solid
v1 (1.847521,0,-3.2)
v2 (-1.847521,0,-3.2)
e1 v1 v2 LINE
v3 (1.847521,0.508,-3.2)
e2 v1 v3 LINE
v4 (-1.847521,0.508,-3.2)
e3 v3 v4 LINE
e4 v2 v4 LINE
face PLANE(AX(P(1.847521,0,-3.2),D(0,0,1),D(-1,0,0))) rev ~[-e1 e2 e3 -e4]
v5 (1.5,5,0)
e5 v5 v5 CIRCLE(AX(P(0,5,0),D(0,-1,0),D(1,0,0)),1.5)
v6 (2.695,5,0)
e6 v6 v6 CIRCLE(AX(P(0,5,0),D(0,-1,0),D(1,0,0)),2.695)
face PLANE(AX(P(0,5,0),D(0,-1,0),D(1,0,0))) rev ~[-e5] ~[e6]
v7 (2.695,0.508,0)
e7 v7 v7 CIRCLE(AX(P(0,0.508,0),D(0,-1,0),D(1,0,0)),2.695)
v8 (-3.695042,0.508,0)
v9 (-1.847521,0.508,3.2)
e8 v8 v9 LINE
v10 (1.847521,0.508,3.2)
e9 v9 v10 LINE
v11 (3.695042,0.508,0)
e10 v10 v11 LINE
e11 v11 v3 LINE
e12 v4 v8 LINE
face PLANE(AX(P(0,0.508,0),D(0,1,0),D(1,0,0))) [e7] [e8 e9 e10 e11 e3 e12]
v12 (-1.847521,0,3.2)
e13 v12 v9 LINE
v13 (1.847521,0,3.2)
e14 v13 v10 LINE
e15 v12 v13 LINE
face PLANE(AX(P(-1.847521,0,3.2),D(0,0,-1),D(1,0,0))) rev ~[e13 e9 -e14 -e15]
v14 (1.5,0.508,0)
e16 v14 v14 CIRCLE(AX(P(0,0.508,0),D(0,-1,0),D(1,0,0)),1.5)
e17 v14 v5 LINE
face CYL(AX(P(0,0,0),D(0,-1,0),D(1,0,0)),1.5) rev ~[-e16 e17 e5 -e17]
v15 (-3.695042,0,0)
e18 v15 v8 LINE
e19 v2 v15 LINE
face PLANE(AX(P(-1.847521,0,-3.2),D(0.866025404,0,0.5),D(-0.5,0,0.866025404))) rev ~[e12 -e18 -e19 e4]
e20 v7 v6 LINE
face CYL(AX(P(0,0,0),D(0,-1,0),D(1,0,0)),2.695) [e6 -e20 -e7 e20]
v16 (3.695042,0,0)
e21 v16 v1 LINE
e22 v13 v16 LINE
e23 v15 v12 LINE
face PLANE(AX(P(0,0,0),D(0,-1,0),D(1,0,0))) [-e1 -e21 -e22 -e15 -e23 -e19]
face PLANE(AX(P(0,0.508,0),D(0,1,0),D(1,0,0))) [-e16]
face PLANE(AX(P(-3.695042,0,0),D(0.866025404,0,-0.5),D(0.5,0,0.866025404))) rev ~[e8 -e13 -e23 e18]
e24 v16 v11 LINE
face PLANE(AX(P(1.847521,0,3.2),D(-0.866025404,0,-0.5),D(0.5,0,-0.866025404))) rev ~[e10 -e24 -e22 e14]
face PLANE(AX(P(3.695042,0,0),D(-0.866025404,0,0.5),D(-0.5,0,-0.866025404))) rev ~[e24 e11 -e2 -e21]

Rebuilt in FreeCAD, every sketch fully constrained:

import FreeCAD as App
import Part
import Sketcher
Q = App.Units.Quantity

doc = App.newDocument("Part")
body = doc.addObject("PartDesign::Body", "Body")

# Sketch on XZ plane
sketch1 = body.newObject("Sketcher::SketchObject", "Sketch")
sketch1.AttachmentSupport = (doc.getObject("XZ_Plane"), [""])
sketch1.MapMode = "FlatFace"
sketch1.addGeometry(Part.LineSegment(App.Vector(1.847521, 3.2, 0), App.Vector(3.695042, 0, 0)), False)
sketch1.addGeometry(Part.LineSegment(App.Vector(3.695042, 0, 0), App.Vector(1.847521, -3.2, 0)), False)
sketch1.addGeometry(Part.LineSegment(App.Vector(1.847521, -3.2, 0), App.Vector(-1.847521, -3.2, 0)), False)
sketch1.addGeometry(Part.LineSegment(App.Vector(-1.847521, -3.2, 0), App.Vector(-3.695042, 0, 0)), False)
sketch1.addGeometry(Part.LineSegment(App.Vector(-3.695042, 0, 0), App.Vector(-1.847521, 3.2, 0)), False)
sketch1.addGeometry(Part.LineSegment(App.Vector(-1.847521, 3.2, 0), App.Vector(1.847521, 3.2, 0)), False)
sketch1.addConstraint(Sketcher.Constraint("Coincident", 0, 2, 1, 1))
sketch1.addConstraint(Sketcher.Constraint("Coincident", 1, 2, 2, 1))
sketch1.addConstraint(Sketcher.Constraint("Coincident", 2, 2, 3, 1))
sketch1.addConstraint(Sketcher.Constraint("Coincident", 3, 2, 4, 1))
sketch1.addConstraint(Sketcher.Constraint("Coincident", 4, 2, 5, 1))
sketch1.addConstraint(Sketcher.Constraint("Coincident", 5, 2, 0, 1))
sketch1.addConstraint(Sketcher.Constraint("Horizontal", 2))
sketch1.addConstraint(Sketcher.Constraint("Horizontal", 5))
sketch1.addConstraint(Sketcher.Constraint("Symmetric", 0, 2, 3, 2, -1, 1))
sketch1.addConstraint(Sketcher.Constraint("Symmetric", 1, 2, 4, 2, -1, 1))
sketch1.addConstraint(Sketcher.Constraint("PointOnObject", 0, 2, -1))
sketch1.addConstraint(Sketcher.Constraint("Parallel", 0, 3))
sketch1.addConstraint(Sketcher.Constraint("Vertical", 2, 2, 4, 2))
sketch1.addConstraint(Sketcher.Constraint("Angle", 0, Q("-60 deg")))
sketch1.addConstraint(Sketcher.Constraint("DistanceY", 1, 2, -1, 1, 3.2))
sketch1.addConstraint(Sketcher.Constraint("DistanceX", 2, 2, 2, 1, 3.695042))
pad1 = body.newObject("PartDesign::Pad", "Pad")
pad1.Profile = sketch1
pad1.Length = 0.508
pad1.Reversed = True

# Sketch on XZ plane
sketch2 = body.newObject("Sketcher::SketchObject", "Sketch001")
sketch2.AttachmentSupport = (doc.getObject("XZ_Plane"), [""])
sketch2.MapMode = "FlatFace"
sketch2.addGeometry(Part.Circle(App.Vector(0, 0, 0), App.Vector(0, 0, 1), 2.695), False)
sketch2.addGeometry(Part.Circle(App.Vector(0, 0, 0), App.Vector(0, 0, 1), 1.5), False)
sketch2.addConstraint(Sketcher.Constraint("Coincident", 0, 3, -1, 1))
sketch2.addConstraint(Sketcher.Constraint("Coincident", 1, 3, -1, 1))
sketch2.addConstraint(Sketcher.Constraint("Diameter", 1, 3.0))
sketch2.addConstraint(Sketcher.Constraint("Diameter", 0, 5.39))
pad2 = body.newObject("PartDesign::Pad", "Pad001")
pad2.Profile = sketch2
pad2.Length = 5
pad2.Reversed = True

doc.recompute()
